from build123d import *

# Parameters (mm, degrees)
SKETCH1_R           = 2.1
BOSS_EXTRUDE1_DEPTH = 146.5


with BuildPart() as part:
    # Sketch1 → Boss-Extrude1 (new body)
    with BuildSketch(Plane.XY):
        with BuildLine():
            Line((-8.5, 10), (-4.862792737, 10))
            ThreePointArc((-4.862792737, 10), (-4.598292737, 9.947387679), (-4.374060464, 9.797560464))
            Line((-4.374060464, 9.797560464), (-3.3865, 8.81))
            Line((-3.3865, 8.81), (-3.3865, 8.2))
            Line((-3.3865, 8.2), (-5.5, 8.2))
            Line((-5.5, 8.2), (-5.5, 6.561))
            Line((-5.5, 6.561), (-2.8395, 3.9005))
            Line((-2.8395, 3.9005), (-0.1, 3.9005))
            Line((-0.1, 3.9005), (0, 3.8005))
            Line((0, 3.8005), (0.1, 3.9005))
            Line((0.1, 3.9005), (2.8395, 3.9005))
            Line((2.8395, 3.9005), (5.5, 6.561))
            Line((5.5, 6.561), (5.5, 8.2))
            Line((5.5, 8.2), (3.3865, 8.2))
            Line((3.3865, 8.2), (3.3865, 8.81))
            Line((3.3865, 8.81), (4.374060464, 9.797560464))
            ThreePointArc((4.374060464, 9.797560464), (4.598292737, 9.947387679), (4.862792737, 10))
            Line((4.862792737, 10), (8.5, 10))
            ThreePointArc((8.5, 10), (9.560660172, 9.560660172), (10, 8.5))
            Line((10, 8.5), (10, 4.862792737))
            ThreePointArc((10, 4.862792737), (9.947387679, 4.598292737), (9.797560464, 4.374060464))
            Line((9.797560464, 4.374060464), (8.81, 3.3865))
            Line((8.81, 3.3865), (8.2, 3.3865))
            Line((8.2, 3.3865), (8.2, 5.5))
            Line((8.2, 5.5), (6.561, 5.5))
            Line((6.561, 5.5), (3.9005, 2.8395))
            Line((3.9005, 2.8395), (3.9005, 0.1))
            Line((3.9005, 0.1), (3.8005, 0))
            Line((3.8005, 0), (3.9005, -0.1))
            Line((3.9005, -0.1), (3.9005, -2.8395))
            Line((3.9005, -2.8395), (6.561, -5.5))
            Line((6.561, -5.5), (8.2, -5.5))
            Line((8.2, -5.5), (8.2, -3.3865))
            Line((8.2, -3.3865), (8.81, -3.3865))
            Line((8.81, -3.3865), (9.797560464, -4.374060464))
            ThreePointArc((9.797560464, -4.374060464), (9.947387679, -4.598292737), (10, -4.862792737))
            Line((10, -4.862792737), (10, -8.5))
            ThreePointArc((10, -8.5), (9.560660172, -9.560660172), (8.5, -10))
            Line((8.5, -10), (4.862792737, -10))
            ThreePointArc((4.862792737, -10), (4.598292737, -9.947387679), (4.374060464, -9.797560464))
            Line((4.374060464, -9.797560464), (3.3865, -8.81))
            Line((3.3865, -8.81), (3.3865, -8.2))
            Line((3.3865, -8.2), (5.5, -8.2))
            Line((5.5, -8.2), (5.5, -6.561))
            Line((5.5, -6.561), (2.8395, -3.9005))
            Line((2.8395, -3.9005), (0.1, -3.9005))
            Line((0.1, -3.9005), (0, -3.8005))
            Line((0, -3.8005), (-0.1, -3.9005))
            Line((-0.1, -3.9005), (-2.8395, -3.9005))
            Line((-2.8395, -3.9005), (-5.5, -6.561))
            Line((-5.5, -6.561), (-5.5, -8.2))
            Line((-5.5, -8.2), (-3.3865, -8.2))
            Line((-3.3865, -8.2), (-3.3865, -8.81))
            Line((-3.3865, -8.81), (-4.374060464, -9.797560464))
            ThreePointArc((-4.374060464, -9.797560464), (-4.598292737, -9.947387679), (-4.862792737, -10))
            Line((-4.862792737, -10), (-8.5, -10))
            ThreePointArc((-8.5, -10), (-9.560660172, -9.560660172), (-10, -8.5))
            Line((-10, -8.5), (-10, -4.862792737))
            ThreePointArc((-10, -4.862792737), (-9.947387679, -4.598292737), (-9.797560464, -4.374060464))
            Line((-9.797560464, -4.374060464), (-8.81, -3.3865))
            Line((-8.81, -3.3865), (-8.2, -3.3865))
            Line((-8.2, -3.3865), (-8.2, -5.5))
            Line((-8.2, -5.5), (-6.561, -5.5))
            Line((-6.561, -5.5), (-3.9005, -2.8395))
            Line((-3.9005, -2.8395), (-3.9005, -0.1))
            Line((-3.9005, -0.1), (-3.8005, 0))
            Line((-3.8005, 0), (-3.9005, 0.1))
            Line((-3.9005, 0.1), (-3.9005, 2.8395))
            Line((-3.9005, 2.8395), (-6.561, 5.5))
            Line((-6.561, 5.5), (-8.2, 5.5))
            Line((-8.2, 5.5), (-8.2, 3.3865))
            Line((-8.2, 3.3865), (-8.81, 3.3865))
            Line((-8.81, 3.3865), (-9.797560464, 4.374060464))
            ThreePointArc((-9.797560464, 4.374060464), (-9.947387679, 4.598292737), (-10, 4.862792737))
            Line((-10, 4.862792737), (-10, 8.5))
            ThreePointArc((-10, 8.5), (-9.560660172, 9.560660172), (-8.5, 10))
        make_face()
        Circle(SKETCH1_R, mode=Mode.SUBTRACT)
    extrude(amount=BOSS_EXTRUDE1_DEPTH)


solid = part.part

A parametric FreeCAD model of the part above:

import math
import FreeCAD as App
import Part
import Sketcher

V = App.Vector

doc = App.newDocument("Part")
body = doc.addObject("PartDesign::Body", "Body")

# Sketch on XY plane
sketch1 = body.newObject("Sketcher::SketchObject", "Sketch")
sketch1.AttachmentSupport = (doc.getObject("XY_Plane"), [""])
sketch1.MapMode = "FlatFace"
sketch1.addGeometry(Part.LineSegment(V(-4.86, 10, 0), V(-8.5, 10, 0)), False)
sketch1.addGeometry(Part.ArcOfCircle(Part.Circle(V(-8.5, 8.5, 0), V(0, 0, 1), 1.5), math.radians(90), math.radians(180)), False)
sketch1.addGeometry(Part.LineSegment(V(-10, 8.5, 0), V(-10, 4.86, 0)), False)
sketch1.addGeometry(Part.ArcOfCircle(Part.Circle(V(-9.31, 4.86, 0), V(0, 0, 1), 0.69), math.radians(180), math.radians(225)), False)
sketch1.addGeometry(Part.LineSegment(V(-9.8, 4.37, 0), V(-8.81, 3.39, 0)), False)
sketch1.addGeometry(Part.LineSegment(V(-8.81, 3.39, 0), V(-8.2, 3.39, 0)), False)
sketch1.addGeometry(Part.LineSegment(V(-8.2, 3.39, 0), V(-8.2, 5.5, 0)), False)
sketch1.addGeometry(Part.LineSegment(V(-8.2, 5.5, 0), V(-6.56, 5.5, 0)), False)
sketch1.addGeometry(Part.LineSegment(V(-6.56, 5.5, 0), V(-3.9, 2.84, 0)), False)
sketch1.addGeometry(Part.LineSegment(V(-3.9, 2.84, 0), V(-3.9, 0.1, 0)), False)
sketch1.addGeometry(Part.LineSegment(V(-3.9, 0.1, 0), V(-3.8, 0, 0)), False)
sketch1.addGeometry(Part.LineSegment(V(-3.8, 0, 0), V(-3.9, -0.1, 0)), False)
sketch1.addGeometry(Part.LineSegment(V(-3.9, -0.1, 0), V(-3.9, -2.84, 0)), False)
sketch1.addGeometry(Part.LineSegment(V(-3.9, -2.84, 0), V(-6.56, -5.5, 0)), False)
sketch1.addGeometry(Part.LineSegment(V(-6.56, -5.5, 0), V(-8.2, -5.5, 0)), False)
sketch1.addGeometry(Part.LineSegment(V(-8.2, -5.5, 0), V(-8.2, -3.39, 0)), False)
sketch1.addGeometry(Part.LineSegment(V(-8.2, -3.39, 0), V(-8.81, -3.39, 0)), False)
sketch1.addGeometry(Part.LineSegment(V(-8.81, -3.39, 0), V(-9.8, -4.37, 0)), False)
sketch1.addGeometry(Part.ArcOfCircle(Part.Circle(V(-9.31, -4.86, 0), V(0, 0, 1), 0.69), math.radians(135), math.radians(180)), False)
sketch1.addGeometry(Part.LineSegment(V(-10, -4.86, 0), V(-10, -8.5, 0)), False)
sketch1.addGeometry(Part.ArcOfCircle(Part.Circle(V(-8.5, -8.5, 0), V(0, 0, 1), 1.5), math.radians(180), math.radians(270)), False)
sketch1.addGeometry(Part.LineSegment(V(-8.5, -10, 0), V(-4.86, -10, 0)), False)
sketch1.addGeometry(Part.ArcOfCircle(Part.Circle(V(-4.86, -9.31, 0), V(0, 0, 1), 0.69), math.radians(-90), math.radians(-45)), False)
sketch1.addGeometry(Part.LineSegment(V(-4.37, -9.8, 0), V(-3.39, -8.81, 0)), False)
sketch1.addGeometry(Part.LineSegment(V(-3.39, -8.81, 0), V(-3.39, -8.2, 0)), False)
sketch1.addGeometry(Part.LineSegment(V(-3.39, -8.2, 0), V(-5.5, -8.2, 0)), False)
sketch1.addGeometry(Part.LineSegment(V(-5.5, -8.2, 0), V(-5.5, -6.56, 0)), False)
sketch1.addGeometry(Part.LineSegment(V(-5.5, -6.56, 0), V(-2.84, -3.9, 0)), False)
sketch1.addGeometry(Part.LineSegment(V(-2.84, -3.9, 0), V(-0.1, -3.9, 0)), False)
sketch1.addGeometry(Part.LineSegment(V(-0.1, -3.9, 0), V(0, -3.8, 0)), False)
sketch1.addGeometry(Part.LineSegment(V(0, -3.8, 0), V(0.1, -3.9, 0)), False)
sketch1.addGeometry(Part.LineSegment(V(0.1, -3.9, 0), V(2.84, -3.9, 0)), False)
sketch1.addGeometry(Part.LineSegment(V(2.84, -3.9, 0), V(5.5, -6.56, 0)), False)
sketch1.addGeometry(Part.LineSegment(V(5.5, -6.56, 0), V(5.5, -8.2, 0)), False)
sketch1.addGeometry(Part.LineSegment(V(5.5, -8.2, 0), V(3.39, -8.2, 0)), False)
sketch1.addGeometry(Part.LineSegment(V(3.39, -8.2, 0), V(3.39, -8.81, 0)), False)
sketch1.addGeometry(Part.LineSegment(V(3.39, -8.81, 0), V(4.37, -9.8, 0)), False)
sketch1.addGeometry(Part.ArcOfCircle(Part.Circle(V(4.86, -9.31, 0), V(0, 0, 1), 0.69), math.radians(-135), math.radians(-90)), False)
sketch1.addGeometry(Part.LineSegment(V(4.86, -10, 0), V(8.5, -10, 0)), False)
sketch1.addGeometry(Part.ArcOfCircle(Part.Circle(V(8.5, -8.5, 0), V(0, 0, 1), 1.5), math.radians(-90), math.radians(0)), False)
sketch1.addGeometry(Part.LineSegment(V(10, -8.5, 0), V(10, -4.86, 0)), False)
sketch1.addGeometry(Part.ArcOfCircle(Part.Circle(V(9.31, -4.86, 0), V(0, 0, 1), 0.69), math.radians(0), math.radians(45)), False)
sketch1.addGeometry(Part.LineSegment(V(9.8, -4.37, 0), V(8.81, -3.39, 0)), False)
sketch1.addGeometry(Part.LineSegment(V(8.81, -3.39, 0), V(8.2, -3.39, 0)), False)
sketch1.addGeometry(Part.LineSegment(V(8.2, -3.39, 0), V(8.2, -5.5, 0)), False)
sketch1.addGeometry(Part.LineSegment(V(8.2, -5.5, 0), V(6.56, -5.5, 0)), False)
sketch1.addGeometry(Part.LineSegment(V(6.56, -5.5, 0), V(3.9, -2.84, 0)), False)
sketch1.addGeometry(Part.LineSegment(V(3.9, -2.84, 0), V(3.9, -0.1, 0)), False)
sketch1.addGeometry(Part.LineSegment(V(3.9, -0.1, 0), V(3.8, 0, 0)), False)
sketch1.addGeometry(Part.LineSegment(V(3.8, 0, 0), V(3.9, 0.1, 0)), False)
sketch1.addGeometry(Part.LineSegment(V(3.9, 0.1, 0), V(3.9, 2.84, 0)), False)
sketch1.addGeometry(Part.LineSegment(V(3.9, 2.84, 0), V(6.56, 5.5, 0)), False)
sketch1.addGeometry(Part.LineSegment(V(6.56, 5.5, 0), V(8.2, 5.5, 0)), False)
sketch1.addGeometry(Part.LineSegment(V(8.2, 5.5, 0), V(8.2, 3.39, 0)), False)
sketch1.addGeometry(Part.LineSegment(V(8.2, 3.39, 0), V(8.81, 3.39, 0)), False)
sketch1.addGeometry(Part.LineSegment(V(8.81, 3.39, 0), V(9.8, 4.37, 0)), False)
sketch1.addGeometry(Part.ArcOfCircle(Part.Circle(V(9.31, 4.86, 0), V(0, 0, 1), 0.69), math.radians(-45), math.radians(0)), False)
sketch1.addGeometry(Part.LineSegment(V(10, 4.86, 0), V(10, 8.5, 0)), False)
sketch1.addGeometry(Part.ArcOfCircle(Part.Circle(V(8.5, 8.5, 0), V(0, 0, 1), 1.5), math.radians(0), math.radians(90)), False)
sketch1.addGeometry(Part.LineSegment(V(8.5, 10, 0), V(4.86, 10, 0)), False)
sketch1.addGeometry(Part.ArcOfCircle(Part.Circle(V(4.86, 9.31, 0), V(0, 0, 1), 0.69), math.radians(90), math.radians(135)), False)
sketch1.addGeometry(Part.LineSegment(V(4.37, 9.8, 0), V(3.39, 8.81, 0)), False)
sketch1.addGeometry(Part.LineSegment(V(3.39, 8.81, 0), V(3.39, 8.2, 0)), False)
sketch1.addGeometry(Part.LineSegment(V(3.39, 8.2, 0), V(5.5, 8.2, 0)), False)
sketch1.addGeometry(Part.LineSegment(V(5.5, 8.2, 0), V(5.5, 6.56, 0)), False)
sketch1.addGeometry(Part.LineSegment(V(5.5, 6.56, 0), V(2.84, 3.9, 0)), False)
sketch1.addGeometry(Part.LineSegment(V(2.84, 3.9, 0), V(0.1, 3.9, 0)), False)
sketch1.addGeometry(Part.LineSegment(V(0.1, 3.9, 0), V(0, 3.8, 0)), False)
sketch1.addGeometry(Part.LineSegment(V(0, 3.8, 0), V(-0.1, 3.9, 0)), False)
sketch1.addGeometry(Part.LineSegment(V(-0.1, 3.9, 0), V(-2.84, 3.9, 0)), False)
sketch1.addGeometry(Part.LineSegment(V(-2.84, 3.9, 0), V(-5.5, 6.56, 0)), False)
sketch1.addGeometry(Part.LineSegment(V(-5.5, 6.56, 0), V(-5.5, 8.2, 0)), False)
sketch1.addGeometry(Part.LineSegment(V(-5.5, 8.2, 0), V(-3.39, 8.2, 0)), False)
sketch1.addGeometry(Part.LineSegment(V(-3.39, 8.2, 0), V(-3.39, 8.81, 0)), False)
sketch1.addGeometry(Part.LineSegment(V(-3.39, 8.81, 0), V(-4.37, 9.8, 0)), False)
sketch1.addGeometry(Part.ArcOfCircle(Part.Circle(V(-4.86, 9.31, 0), V(0, 0, 1), 0.69), math.radians(45), math.radians(90)), False)
sketch1.addGeometry(Part.Circle(V(0, 0, 0), V(0, 0, 1), 2.1), False)
sketch1.addConstraint(Sketcher.Constraint("Tangent", 0, 2, 1, 1))
sketch1.addConstraint(Sketcher.Constraint("Tangent", 1, 2, 2, 1))
sketch1.addConstraint(Sketcher.Constraint("Tangent", 2, 2, 3, 1))
sketch1.addConstraint(Sketcher.Constraint("Tangent", 3, 2, 4, 1))
sketch1.addConstraint(Sketcher.Constraint("Coincident", 4, 2, 5, 1))
sketch1.addConstraint(Sketcher.Constraint("Coincident", 5, 2, 6, 1))
sketch1.addConstraint(Sketcher.Constraint("Coincident", 6, 2, 7, 1))
sketch1.addConstraint(Sketcher.Constraint("Coincident", 7, 2, 8, 1))
sketch1.addConstraint(Sketcher.Constraint("Coincident", 8, 2, 9, 1))
sketch1.addConstraint(Sketcher.Constraint("Coincident", 9, 2, 10, 1))
sketch1.addConstraint(Sketcher.Constraint("Coincident", 10, 2, 11, 1))
sketch1.addConstraint(Sketcher.Constraint("Coincident", 11, 2, 12, 1))
sketch1.addConstraint(Sketcher.Constraint("Coincident", 12, 2, 13, 1))
sketch1.addConstraint(Sketcher.Constraint("Coincident", 13, 2, 14, 1))
sketch1.addConstraint(Sketcher.Constraint("Coincident", 14, 2, 15, 1))
sketch1.addConstraint(Sketcher.Constraint("Coincident", 15, 2, 16, 1))
sketch1.addConstraint(Sketcher.Constraint("Coincident", 16, 2, 17, 1))
sketch1.addConstraint(Sketcher.Constraint("Tangent", 17, 2, 18, 1))
sketch1.addConstraint(Sketcher.Constraint("Tangent", 18, 2, 19, 1))
sketch1.addConstraint(Sketcher.Constraint("Tangent", 19, 2, 20, 1))
sketch1.addConstraint(Sketcher.Constraint("Tangent", 20, 2, 21, 1))
sketch1.addConstraint(Sketcher.Constraint("Tangent", 21, 2, 22, 1))
sketch1.addConstraint(Sketcher.Constraint("Tangent", 22, 2, 23, 1))
sketch1.addConstraint(Sketcher.Constraint("Coincident", 23, 2, 24, 1))
sketch1.addConstraint(Sketcher.Constraint("Coincident", 24, 2, 25, 1))
sketch1.addConstraint(Sketcher.Constraint("Coincident", 25, 2, 26, 1))
sketch1.addConstraint(Sketcher.Constraint("Coincident", 26, 2, 27, 1))
sketch1.addConstraint(Sketcher.Constraint("Coincident", 27, 2, 28, 1))
sketch1.addConstraint(Sketcher.Constraint("Coincident", 28, 2, 29, 1))
sketch1.addConstraint(Sketcher.Constraint("Coincident", 29, 2, 30, 1))
sketch1.addConstraint(Sketcher.Constraint("Coincident", 30, 2, 31, 1))
sketch1.addConstraint(Sketcher.Constraint("Coincident", 31, 2, 32, 1))
sketch1.addConstraint(Sketcher.Constraint("Coincident", 32, 2, 33, 1))
sketch1.addConstraint(Sketcher.Constraint("Coincident", 33, 2, 34, 1))
sketch1.addConstraint(Sketcher.Constraint("Coincident", 34, 2, 35, 1))
sketch1.addConstraint(Sketcher.Constraint("Coincident", 35, 2, 36, 1))
sketch1.addConstraint(Sketcher.Constraint("Tangent", 36, 2, 37, 1))
sketch1.addConstraint(Sketcher.Constraint("Tangent", 37, 2, 38, 1))
sketch1.addConstraint(Sketcher.Constraint("Tangent", 38, 2, 39, 1))
sketch1.addConstraint(Sketcher.Constraint("Tangent", 39, 2, 40, 1))
sketch1.addConstraint(Sketcher.Constraint("Tangent", 40, 2, 41, 1))
sketch1.addConstraint(Sketcher.Constraint("Tangent", 41, 2, 42, 1))
sketch1.addConstraint(Sketcher.Constraint("Coincident", 42, 2, 43, 1))
sketch1.addConstraint(Sketcher.Constraint("Coincident", 43, 2, 44, 1))
sketch1.addConstraint(Sketcher.Constraint("Coincident", 44, 2, 45, 1))
sketch1.addConstraint(Sketcher.Constraint("Coincident", 45, 2, 46, 1))
sketch1.addConstraint(Sketcher.Constraint("Coincident", 46, 2, 47, 1))
sketch1.addConstraint(Sketcher.Constraint("Coincident", 47, 2, 48, 1))
sketch1.addConstraint(Sketcher.Constraint("Coincident", 48, 2, 49, 1))
sketch1.addConstraint(Sketcher.Constraint("Coincident", 49, 2, 50, 1))
sketch1.addConstraint(Sketcher.Constraint("Coincident", 50, 2, 51, 1))
sketch1.addConstraint(Sketcher.Constraint("Coincident", 51, 2, 52, 1))
sketch1.addConstraint(Sketcher.Constraint("Coincident", 52, 2, 53, 1))
sketch1.addConstraint(Sketcher.Constraint("Coincident", 53, 2, 54, 1))
sketch1.addConstraint(Sketcher.Constraint("Coincident", 54, 2, 55, 1))
sketch1.addConstraint(Sketcher.Constraint("Tangent", 55, 2, 56, 1))
sketch1.addConstraint(Sketcher.Constraint("Tangent", 56, 2, 57, 1))
sketch1.addConstraint(Sketcher.Constraint("Tangent", 57, 2, 58, 1))
sketch1.addConstraint(Sketcher.Constraint("Tangent", 58, 2, 59, 1))
sketch1.addConstraint(Sketcher.Constraint("Tangent", 59, 2, 60, 1))
sketch1.addConstraint(Sketcher.Constraint("Tangent", 60, 2, 61, 1))
sketch1.addConstraint(Sketcher.Constraint("Coincident", 61, 2, 62, 1))
sketch1.addConstraint(Sketcher.Constraint("Coincident", 62, 2, 63, 1))
sketch1.addConstraint(Sketcher.Constraint("Coincident", 63, 2, 64, 1))
sketch1.addConstraint(Sketcher.Constraint("Coincident", 64, 2, 65, 1))
sketch1.addConstraint(Sketcher.Constraint("Coincident", 65, 2, 66, 1))
sketch1.addConstraint(Sketcher.Constraint("Coincident", 66, 2, 67, 1))
sketch1.addConstraint(Sketcher.Constraint("Coincident", 67, 2, 68, 1))
sketch1.addConstraint(Sketcher.Constraint("Coincident", 68, 2, 69, 1))
sketch1.addConstraint(Sketcher.Constraint("Coincident", 69, 2, 70, 1))
sketch1.addConstraint(Sketcher.Constraint("Coincident", 70, 2, 71, 1))
sketch1.addConstraint(Sketcher.Constraint("Coincident", 71, 2, 72, 1))
sketch1.addConstraint(Sketcher.Constraint("Coincident", 72, 2, 73, 1))
sketch1.addConstraint(Sketcher.Constraint("Coincident", 73, 2, 74, 1))
sketch1.addConstraint(Sketcher.Constraint("Tangent", 74, 2, 75, 1))
sketch1.addConstraint(Sketcher.Constraint("Tangent", 75, 2, 0, 1))
sketch1.addConstraint(Sketcher.Constraint("Horizontal", 0))
sketch1.addConstraint(Sketcher.Constraint("Vertical", 2))
sketch1.addConstraint(Sketcher.Constraint("Horizontal", 5))
sketch1.addConstraint(Sketcher.Constraint("Vertical", 6))
sketch1.addConstraint(Sketcher.Constraint("Horizontal", 7))
sketch1.addConstraint(Sketcher.Constraint("Vertical", 9))
sketch1.addConstraint(Sketcher.Constraint("Vertical", 12))
sketch1.addConstraint(Sketcher.Constraint("Horizontal", 14))
sketch1.addConstraint(Sketcher.Constraint("Vertical", 15))
sketch1.addConstraint(Sketcher.Constraint("Horizontal", 16))
sketch1.addConstraint(Sketcher.Constraint("Vertical", 19))
sketch1.addConstraint(Sketcher.Constraint("Horizontal", 21))
sketch1.addConstraint(Sketcher.Constraint("Vertical", 24))
sketch1.addConstraint(Sketcher.Constraint("Horizontal", 25))
sketch1.addConstraint(Sketcher.Constraint("Vertical", 26))
sketch1.addConstraint(Sketcher.Constraint("Horizontal", 28))
sketch1.addConstraint(Sketcher.Constraint("Horizontal", 31))
sketch1.addConstraint(Sketcher.Constraint("Vertical", 33))
sketch1.addConstraint(Sketcher.Constraint("Horizontal", 34))
sketch1.addConstraint(Sketcher.Constraint("Vertical", 35))
sketch1.addConstraint(Sketcher.Constraint("Horizontal", 38))
sketch1.addConstraint(Sketcher.Constraint("Vertical", 40))
sketch1.addConstraint(Sketcher.Constraint("Horizontal", 43))
sketch1.addConstraint(Sketcher.Constraint("Vertical", 44))
sketch1.addConstraint(Sketcher.Constraint("Horizontal", 45))
sketch1.addConstraint(Sketcher.Constraint("Vertical", 47))
sketch1.addConstraint(Sketcher.Constraint("Vertical", 50))
sketch1.addConstraint(Sketcher.Constraint("Horizontal", 52))
sketch1.addConstraint(Sketcher.Constraint("Vertical", 53))
sketch1.addConstraint(Sketcher.Constraint("Horizontal", 54))
sketch1.addConstraint(Sketcher.Constraint("Vertical", 57))
sketch1.addConstraint(Sketcher.Constraint("Horizontal", 59))
sketch1.addConstraint(Sketcher.Constraint("Vertical", 62))
sketch1.addConstraint(Sketcher.Constraint("Horizontal", 63))
sketch1.addConstraint(Sketcher.Constraint("Vertical", 64))
sketch1.addConstraint(Sketcher.Constraint("Horizontal", 66))
sketch1.addConstraint(Sketcher.Constraint("Horizontal", 69))
sketch1.addConstraint(Sketcher.Constraint("Vertical", 71))
sketch1.addConstraint(Sketcher.Constraint("Horizontal", 72))
sketch1.addConstraint(Sketcher.Constraint("Vertical", 73))
sketch1.addConstraint(Sketcher.Constraint("Coincident", 76, 3, -1, 1))
sketch1.addConstraint(Sketcher.Constraint("Equal", 3, 18))
sketch1.addConstraint(Sketcher.Constraint("Equal", 1, 20))
sketch1.addConstraint(Sketcher.Constraint("Equal", 18, 22))
sketch1.addConstraint(Sketcher.Constraint("Equal", 22, 37))
sketch1.addConstraint(Sketcher.Constraint("Equal", 20, 39))
sketch1.addConstraint(Sketcher.Constraint("Equal", 37, 41))
sketch1.addConstraint(Sketcher.Constraint("Equal", 41, 56))
sketch1.addConstraint(Sketcher.Constraint("Equal", 39, 58))
sketch1.addConstraint(Sketcher.Constraint("Equal", 56, 60))
sketch1.addConstraint(Sketcher.Constraint("Equal", 60, 75))
sketch1.addConstraint(Sketcher.Constraint("Symmetric", 1, 3, 39, 3, -1, 1))
sketch1.addConstraint(Sketcher.Constraint("Symmetric", 18, 3, 56, 3, -1, 1))
sketch1.addConstraint(Sketcher.Constraint("Symmetric", 22, 3, 60, 3, -1, 1))
sketch1.addConstraint(Sketcher.Constraint("Symmetric", 3, 2, 41, 2, -1, 1))
sketch1.addConstraint(Sketcher.Constraint("Symmetric", 5, 2, 43, 2, -1, 1))
sketch1.addConstraint(Sketcher.Constraint("Symmetric", 7, 2, 45, 2, -1, 1))
sketch1.addConstraint(Sketcher.Constraint("Symmetric", 8, 2, 46, 2, -1, 1))
sketch1.addConstraint(Sketcher.Constraint("Symmetric", 10, 2, 48, 2, -1, 1))
sketch1.addConstraint(Sketcher.Constraint("Symmetric", 11, 2, 49, 2, -1, 1))
sketch1.addConstraint(Sketcher.Constraint("Symmetric", 13, 2, 51, 2, -1, 1))
sketch1.addConstraint(Sketcher.Constraint("Symmetric", 15, 2, 53, 2, -1, 1))
sketch1.addConstraint(Sketcher.Constraint("Symmetric", 23, 2, 61, 2, -1, 1))
sketch1.addConstraint(Sketcher.Constraint("Symmetric", 25, 2, 63, 2, -1, 1))
sketch1.addConstraint(Sketcher.Constraint("Symmetric", 27, 2, 65, 2, -1, 1))
sketch1.addConstraint(Sketcher.Constraint("Symmetric", 29, 2, 67, 2, -1, 1))
sketch1.addConstraint(Sketcher.Constraint("Symmetric", 30, 2, 68, 2, -1, 1))
sketch1.addConstraint(Sketcher.Constraint("Symmetric", 32, 2, 70, 2, -1, 1))
sketch1.addConstraint(Sketcher.Constraint("Symmetric", 34, 2, 72, 2, -1, 1))
sketch1.addConstraint(Sketcher.Constraint("Symmetric", 36, 2, 74, 2, -1, 1))
sketch1.addConstraint(Sketcher.Constraint("Symmetric", 22, 3, 37, 3, -2))
sketch1.addConstraint(Sketcher.Constraint("Symmetric", 18, 3, 41, 3, -2))
sketch1.addConstraint(Sketcher.Constraint("Symmetric", 28, 2, 30, 2, -2))
sketch1.addConstraint(Sketcher.Constraint("Symmetric", 26, 2, 32, 2, -2))
sketch1.addConstraint(Sketcher.Constraint("Symmetric", 24, 2, 34, 2, -2))
sketch1.addConstraint(Sketcher.Constraint("Symmetric", 16, 2, 42, 2, -2))
sketch1.addConstraint(Sketcher.Constraint("Symmetric", 14, 2, 44, 2, -2))
sketch1.addConstraint(Sketcher.Constraint("Symmetric", 12, 2, 46, 2, -2))
sketch1.addConstraint(Sketcher.Constraint("PointOnObject", 10, 2, -1))
sketch1.addConstraint(Sketcher.Constraint("PointOnObject", 29, 2, -2))
sketch1.addConstraint(Sketcher.Constraint("Parallel", 4, 8))
sketch1.addConstraint(Sketcher.Constraint("Parallel", 8, 10))
sketch1.addConstraint(Sketcher.Constraint("Perpendicular", 10, 11))
sketch1.addConstraint(Sketcher.Constraint("Parallel", 11, 13))
sketch1.addConstraint(Sketcher.Constraint("Parallel", 13, 17))
sketch1.addConstraint(Sketcher.Constraint("Parallel", 17, 23))
sketch1.addConstraint(Sketcher.Constraint("Parallel", 23, 27))
sketch1.addConstraint(Sketcher.Constraint("Parallel", 27, 29))
sketch1.addConstraint(Sketcher.Constraint("Parallel", 30, 32))
sketch1.addConstraint(Sketcher.Constraint("Parallel", 32, 36))
sketch1.addConstraint(Sketcher.Constraint("Parallel", 46, 48))
sketch1.addConstraint(Sketcher.Constraint("Parallel", 49, 51))
sketch1.addConstraint(Sketcher.Constraint("Parallel", 51, 55))
sketch1.addConstraint(Sketcher.Constraint("Parallel", 61, 65))
sketch1.addConstraint(Sketcher.Constraint("Parallel", 65, 67))
sketch1.addConstraint(Sketcher.Constraint("Parallel", 68, 70))
sketch1.addConstraint(Sketcher.Constraint("Equal", 59, 2))
sketch1.addConstraint(Sketcher.Constraint("Equal", 72, 6))
sketch1.addConstraint(Sketcher.Constraint("Equal", 69, 9))
sketch1.addConstraint(Sketcher.Constraint("Equal", 54, 24))
sketch1.addConstraint(Sketcher.Constraint("Equal", 52, 26))
sketch1.addConstraint(Sketcher.Constraint("Equal", 17, 23))
sketch1.addConstraint(Sketcher.Constraint("Equal", 13, 27))
sketch1.addConstraint(Sketcher.Constraint("Equal", 11, 29))
sketch1.addConstraint(Sketcher.Constraint("Diameter", 76, 4.2))
sketch1.addConstraint(Sketcher.Constraint("Radius", 1, 1.5))
sketch1.addConstraint(Sketcher.Constraint("DistanceY", -1, 1, 0, 2, 10.0))
sketch1.addConstraint(Sketcher.Constraint("DistanceX", 5, 1, 5, 2, 0.61))
sketch1.addConstraint(Sketcher.Constraint("DistanceX", 5, 2, -1, 1, 8.2))
sketch1.addConstraint(Sketcher.Constraint("DistanceY", -1, 1, 6, 2, 5.5))
sketch1.addConstraint(Sketcher.Constraint("DistanceY", -1, 1, 9, 2, 0.1))
sketch1.addConstraint(Sketcher.Constraint("DistanceX", 7, 1, 7, 2, 1.639))
sketch1.addConstraint(Sketcher.Constraint("Radius", 3, 0.691172))
sketch1.addConstraint(Sketcher.Constraint("DistanceX", 25, 2, 25, 1, 2.1135))
sketch1.addConstraint(Sketcher.Constraint("DistanceX", 28, 1, 28, 2, 2.7395))
pad1 = body.newObject("PartDesign::Pad", "Pad")
pad1.Profile = sketch1
pad1.Length = 146.5

doc.recompute()
